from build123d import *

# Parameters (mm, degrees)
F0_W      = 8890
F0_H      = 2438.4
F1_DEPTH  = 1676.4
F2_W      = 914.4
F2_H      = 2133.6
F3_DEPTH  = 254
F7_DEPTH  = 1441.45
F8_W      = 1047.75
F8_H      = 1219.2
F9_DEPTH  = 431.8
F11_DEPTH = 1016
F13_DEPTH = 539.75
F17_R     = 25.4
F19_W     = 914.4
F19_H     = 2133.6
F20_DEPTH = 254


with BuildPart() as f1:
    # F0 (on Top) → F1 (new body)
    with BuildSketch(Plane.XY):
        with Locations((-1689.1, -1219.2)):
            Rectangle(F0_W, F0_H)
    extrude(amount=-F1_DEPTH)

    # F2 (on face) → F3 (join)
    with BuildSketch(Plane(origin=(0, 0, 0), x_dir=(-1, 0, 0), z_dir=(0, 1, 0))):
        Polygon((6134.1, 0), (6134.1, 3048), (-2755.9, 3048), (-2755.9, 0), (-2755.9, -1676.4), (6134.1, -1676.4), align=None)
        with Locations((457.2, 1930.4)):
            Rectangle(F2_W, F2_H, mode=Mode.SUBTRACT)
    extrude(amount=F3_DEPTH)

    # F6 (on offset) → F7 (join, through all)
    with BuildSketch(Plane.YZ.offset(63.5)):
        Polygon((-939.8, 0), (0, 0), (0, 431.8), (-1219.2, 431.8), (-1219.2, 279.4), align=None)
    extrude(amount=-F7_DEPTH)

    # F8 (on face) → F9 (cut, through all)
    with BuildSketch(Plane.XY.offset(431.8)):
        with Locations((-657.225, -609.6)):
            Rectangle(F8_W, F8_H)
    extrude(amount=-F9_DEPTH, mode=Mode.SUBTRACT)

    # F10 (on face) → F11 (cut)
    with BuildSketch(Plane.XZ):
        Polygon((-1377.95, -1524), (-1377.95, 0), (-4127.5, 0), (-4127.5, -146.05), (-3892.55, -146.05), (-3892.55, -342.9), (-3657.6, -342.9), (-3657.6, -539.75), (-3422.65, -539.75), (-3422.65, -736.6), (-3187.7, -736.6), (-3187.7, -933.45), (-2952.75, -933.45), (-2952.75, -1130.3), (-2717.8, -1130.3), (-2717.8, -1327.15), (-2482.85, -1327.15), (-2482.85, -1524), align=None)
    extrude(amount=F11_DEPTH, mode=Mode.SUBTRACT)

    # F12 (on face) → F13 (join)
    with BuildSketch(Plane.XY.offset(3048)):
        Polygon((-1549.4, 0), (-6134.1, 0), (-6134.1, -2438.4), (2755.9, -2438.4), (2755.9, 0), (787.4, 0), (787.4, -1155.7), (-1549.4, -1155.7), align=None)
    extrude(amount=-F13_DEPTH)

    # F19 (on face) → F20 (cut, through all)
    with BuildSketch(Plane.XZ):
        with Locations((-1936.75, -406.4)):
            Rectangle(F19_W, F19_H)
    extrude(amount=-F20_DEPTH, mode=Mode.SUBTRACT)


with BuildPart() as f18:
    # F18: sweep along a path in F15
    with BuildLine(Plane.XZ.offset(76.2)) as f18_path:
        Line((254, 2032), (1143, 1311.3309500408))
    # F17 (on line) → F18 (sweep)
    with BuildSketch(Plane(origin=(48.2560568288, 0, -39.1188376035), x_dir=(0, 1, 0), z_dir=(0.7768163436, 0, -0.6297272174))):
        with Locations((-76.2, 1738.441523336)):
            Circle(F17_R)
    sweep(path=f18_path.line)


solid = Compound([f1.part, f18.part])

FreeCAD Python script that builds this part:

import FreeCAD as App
import Part
import Sketcher

V = App.Vector
Q = App.Units.Quantity


def add_polygon(sketch, points):
    """Adds a closed chain of lines whose ends are joined by coincident constraints."""
    first, n = sketch.GeometryCount, len(points)
    for a, b in zip(points, points[1:] + points[:1]):
        sketch.addGeometry(Part.LineSegment(App.Vector(*a, 0), App.Vector(*b, 0)), False)
    for i in range(n):
        sketch.addConstraint(Sketcher.Constraint("Coincident", first + i, 2, first + (i + 1) % n, 1))

doc = App.newDocument("Part")
params = doc.addObject("Spreadsheet::Sheet", "Params")
for row, (alias, value) in enumerate([
    ("sketch1_width", "350 in"),
    ("sketch1_height", "96 in"),
    ("pad1_length", "66 in"),
    ("sketch2_width", "350 in"),
    ("sketch2_width2", "36 in"),
    ("sketch2_height", "186 in"),
    ("sketch2_height2", "84 in"),
    ("pad2_length", "10 in"),
    ("sketch3_width", "37 in"),
    ("sketch3_width2", "48 in"),
    ("sketch3_height", "17 in"),
    ("sketch3_height2", "6 in"),
    ("pad3_length", "56.75 in"),
    ("sketch4_height", "48 in"),
    ("sketch4_width", "41.25 in"),
    ("pocket1_length", "17 in"),
    ("sketch5_height", "60 in"),
    ("sketch5_width", "43.5 in"),
    ("pocket2_length", "40 in"),
    ("sketch6_width", "350 in"),
    ("sketch6_width2", "92 in"),
    ("sketch6_height", "96 in"),
    ("sketch6_width3", "180.5 in"),
    ("sketch6_height2", "45.5 in"),
    ("pad4_length", "21.25 in"),
    ("sketch7_width", "36 in"),
    ("sketch7_height", "84 in"),
    ("sketch8_diameter", "2 in"),
], start=1):
    params.set(f"A{row}", alias)
    params.set(f"B{row}", "=" + value)
    params.setAlias(f"B{row}", alias)

body = doc.addObject("PartDesign::Body", "Body")

sketch1 = doc.addObject("Sketcher::SketchObject", "Sketch")
body.addObject(sketch1)
sketch1.AttachmentSupport = (doc.XY_Plane, [""])
sketch1.MapMode = "FlatFace"
add_polygon(sketch1, [(-6134, 0), (-6134, -2438), (2756, -2438), (2756, 0)])
sketch1.addConstraint(Sketcher.Constraint("Vertical", 0))
sketch1.addConstraint(Sketcher.Constraint("Horizontal", 1))
sketch1.addConstraint(Sketcher.Constraint("Vertical", 2))
sketch1.addConstraint(Sketcher.Constraint("Horizontal", 3))
sketch1.addConstraint(Sketcher.Constraint("PointOnObject", 2, 2, -1))
sketch1.addConstraint(Sketcher.Constraint("DistanceX", 1, 1, 1, 2, Q("350 in")))
sketch1.addConstraint(Sketcher.Constraint("DistanceY", 0, 2, 0, 1, Q("96 in")))
sketch1.addConstraint(Sketcher.Constraint("DistanceX", 0, 2, -1, 1, Q("241.5 in")))
sketch1.setExpression("Constraints[9]", "Params.sketch1_width")
sketch1.setExpression("Constraints[10]", "Params.sketch1_height")
pad1 = doc.addObject("PartDesign::Pad", "Pad")
body.addObject(pad1)
pad1.Profile = sketch1
pad1.setExpression("Length", "Params.pad1_length")
pad1.Reversed = True

sketch2 = doc.addObject("Sketcher::SketchObject", "Sketch001")
body.addObject(sketch2)
sketch2.AttachmentSupport = (doc.XZ_Plane, [""])
sketch2.MapMode = "FlatFace"
add_polygon(sketch2, [(-6134, 3048), (2756, 3048), (2756, -1676), (-6134, -1676)])
add_polygon(sketch2, [(-914, 864), (0, 864), (0, 2997), (-914, 2997)])
sketch2.addConstraint(Sketcher.Constraint("Horizontal", 0))
sketch2.addConstraint(Sketcher.Constraint("Vertical", 1))
sketch2.addConstraint(Sketcher.Constraint("Horizontal", 2))
sketch2.addConstraint(Sketcher.Constraint("Vertical", 3))
sketch2.addConstraint(Sketcher.Constraint("Horizontal", 4))
sketch2.addConstraint(Sketcher.Constraint("Vertical", 5))
sketch2.addConstraint(Sketcher.Constraint("Horizontal", 6))
sketch2.addConstraint(Sketcher.Constraint("Vertical", 7))
sketch2.addConstraint(Sketcher.Constraint("PointOnObject", 4, 2, -2))
sketch2.addConstraint(Sketcher.Constraint("DistanceX", 0, 1, 0, 2, Q("350 in")))
sketch2.addConstraint(Sketcher.Constraint("DistanceX", 4, 1, 4, 2, Q("36 in")))
sketch2.addConstraint(Sketcher.Constraint("DistanceY", 1, 2, 1, 1, Q("186 in")))
sketch2.addConstraint(Sketcher.Constraint("DistanceY", 5, 1, 5, 2, Q("84 in")))
sketch2.addConstraint(Sketcher.Constraint("DistanceY", -1, 1, 0, 2, Q("120 in")))
sketch2.addConstraint(Sketcher.Constraint("DistanceY", -1, 1, 4, 2, Q("34 in")))
sketch2.addConstraint(Sketcher.Constraint("DistanceX", -1, 1, 0, 2, Q("108.5 in")))
sketch2.setExpression("Constraints[17]", "Params.sketch2_width")
sketch2.setExpression("Constraints[18]", "Params.sketch2_width2")
sketch2.setExpression("Constraints[19]", "Params.sketch2_height")
sketch2.setExpression("Constraints[20]", "Params.sketch2_height2")
pad2 = doc.addObject("PartDesign::Pad", "Pad001")
body.addObject(pad2)
pad2.Profile = sketch2
pad2.setExpression("Length", "Params.pad2_length")
pad2.Reversed = True

sketch3 = doc.addObject("Sketcher::SketchObject", "Sketch002")
body.addObject(sketch3)
sketch3.AttachmentSupport = (doc.YZ_Plane, [""])
sketch3.MapMode = "FlatFace"
sketch3.AttachmentOffset = App.Placement(V(0, 0, 2.5 * 25.4), App.Rotation())
add_polygon(sketch3, [(-940, 0), (0, 0), (0, 432), (-1219, 432), (-1219, 279)])
sketch3.addConstraint(Sketcher.Constraint("Horizontal", 0))
sketch3.addConstraint(Sketcher.Constraint("Vertical", 1))
sketch3.addConstraint(Sketcher.Constraint("Horizontal", 2))
sketch3.addConstraint(Sketcher.Constraint("Vertical", 3))
sketch3.addConstraint(Sketcher.Constraint("Coincident", 0, 2, -1, 1))
sketch3.addConstraint(Sketcher.Constraint("DistanceX", 0, 1, 0, 2, Q("37 in")))
sketch3.addConstraint(Sketcher.Constraint("DistanceX", 2, 2, 2, 1, Q("48 in")))
sketch3.addConstraint(Sketcher.Constraint("DistanceY", 1, 1, 1, 2, Q("17 in")))
sketch3.addConstraint(Sketcher.Constraint("DistanceY", 3, 2, 3, 1, Q("6 in")))
sketch3.setExpression("Constraints[10]", "Params.sketch3_width")
sketch3.setExpression("Constraints[11]", "Params.sketch3_width2")
sketch3.setExpression("Constraints[12]", "Params.sketch3_height")
sketch3.setExpression("Constraints[13]", "Params.sketch3_height2")
pad3 = doc.addObject("PartDesign::Pad", "Pad002")
body.addObject(pad3)
pad3.Profile = sketch3
pad3.setExpression("Length", "Params.pad3_length")
pad3.Reversed = True

sketch4 = doc.addObject("Sketcher::SketchObject", "Sketch003")
body.addObject(sketch4)
sketch4.AttachmentSupport = (doc.XY_Plane, [""])
sketch4.MapMode = "FlatFace"
sketch4.AttachmentOffset = App.Placement(V(0, 0, 17 * 25.4), App.Rotation())
add_polygon(sketch4, [(-1181, 0), (-1181, -1219), (-133, -1219), (-133, 0)])
sketch4.addConstraint(Sketcher.Constraint("Vertical", 0))
sketch4.addConstraint(Sketcher.Constraint("Horizontal", 1))
sketch4.addConstraint(Sketcher.Constraint("Vertical", 2))
sketch4.addConstraint(Sketcher.Constraint("Horizontal", 3))
sketch4.addConstraint(Sketcher.Constraint("PointOnObject", 2, 2, -1))
sketch4.addConstraint(Sketcher.Constraint("DistanceY", 0, 2, 0, 1, Q("48 in")))
sketch4.addConstraint(Sketcher.Constraint("DistanceX", 1, 1, 1, 2, Q("41.25 in")))
sketch4.addConstraint(Sketcher.Constraint("DistanceX", 0, 2, -1, 1, Q("46.5 in")))
sketch4.setExpression("Constraints[9]", "Params.sketch4_height")
sketch4.setExpression("Constraints[10]", "Params.sketch4_width")
pocket1 = doc.addObject("PartDesign::Pocket", "Pocket")
body.addObject(pocket1)
pocket1.Profile = sketch4
pocket1.setExpression("Length", "Params.pocket1_length")

sketch5 = doc.addObject("Sketcher::SketchObject", "Sketch004")
body.addObject(sketch5)
sketch5.AttachmentSupport = (doc.XZ_Plane, [""])
sketch5.MapMode = "FlatFace"
add_polygon(sketch5, [(-1378, -1524), (-1378, 0), (-4128, 0), (-4128, -146), (-3893, -146), (-3893, -343), (-3658, -343), (-3658, -540), (-3423, -540), (-3423, -737), (-3188, -737), (-3188, -933), (-2953, -933), (-2953, -1130), (-2718, -1130), (-2718, -1327), (-2483, -1327), (-2483, -1524)])
sketch5.addConstraint(Sketcher.Constraint("Vertical", 0))
sketch5.addConstraint(Sketcher.Constraint("Horizontal", 1))
sketch5.addConstraint(Sketcher.Constraint("Vertical", 2))
sketch5.addConstraint(Sketcher.Constraint("Horizontal", 3))
sketch5.addConstraint(Sketcher.Constraint("Vertical", 4))
sketch5.addConstraint(Sketcher.Constraint("Horizontal", 5))
sketch5.addConstraint(Sketcher.Constraint("Vertical", 6))
sketch5.addConstraint(Sketcher.Constraint("Horizontal", 7))
sketch5.addConstraint(Sketcher.Constraint("Vertical", 8))
sketch5.addConstraint(Sketcher.Constraint("Horizontal", 9))
sketch5.addConstraint(Sketcher.Constraint("Vertical", 10))
sketch5.addConstraint(Sketcher.Constraint("Horizontal", 11))
sketch5.addConstraint(Sketcher.Constraint("Vertical", 12))
sketch5.addConstraint(Sketcher.Constraint("Horizontal", 13))
sketch5.addConstraint(Sketcher.Constraint("Vertical", 14))
sketch5.addConstraint(Sketcher.Constraint("Horizontal", 15))
sketch5.addConstraint(Sketcher.Constraint("Vertical", 16))
sketch5.addConstraint(Sketcher.Constraint("Horizontal", 17))
sketch5.addConstraint(Sketcher.Constraint("PointOnObject", 0, 2, -1))
sketch5.addConstraint(Sketcher.Constraint("Equal", 3, 5))
sketch5.addConstraint(Sketcher.Constraint("Equal", 5, 7))
sketch5.addConstraint(Sketcher.Constraint("Equal", 7, 9))
sketch5.addConstraint(Sketcher.Constraint("Equal", 9, 11))
sketch5.addConstraint(Sketcher.Constraint("Equal", 11, 13))
sketch5.addConstraint(Sketcher.Constraint("Equal", 13, 15))
sketch5.addConstraint(Sketcher.Constraint("Equal", 4, 6))
sketch5.addConstraint(Sketcher.Constraint("Equal", 6, 8))
sketch5.addConstraint(Sketcher.Constraint("Equal", 8, 10))
sketch5.addConstraint(Sketcher.Constraint("Equal", 10, 12))
sketch5.addConstraint(Sketcher.Constraint("Equal", 12, 14))
sketch5.addConstraint(Sketcher.Constraint("Equal", 14, 16))
sketch5.addConstraint(Sketcher.Constraint("DistanceY", 0, 1, 0, 2, Q("60 in")))
sketch5.addConstraint(Sketcher.Constraint("DistanceX", 17, 1, 17, 2, Q("43.5 in")))
sketch5.addConstraint(Sketcher.Constraint("DistanceX", 5, 2, -1, 1, Q("144 in")))
sketch5.addConstraint(Sketcher.Constraint("DistanceY", 8, 2, -1, 1, Q("29 in")))
sketch5.addConstraint(Sketcher.Constraint("DistanceX", 13, 2, -1, 1, Q("107 in")))
sketch5.setExpression("Constraints[49]", "Params.sketch5_height")
sketch5.setExpression("Constraints[50]", "Params.sketch5_width")
pocket2 = doc.addObject("PartDesign::Pocket", "Pocket001")
body.addObject(pocket2)
pocket2.Profile = sketch5
pocket2.setExpression("Length", "Params.pocket2_length")
pocket2.Reversed = True

sketch6 = doc.addObject("Sketcher::SketchObject", "Sketch005")
body.addObject(sketch6)
sketch6.AttachmentSupport = (doc.XY_Plane, [""])
sketch6.MapMode = "FlatFace"
sketch6.AttachmentOffset = App.Placement(V(0, 0, 120 * 25.4), App.Rotation())
add_polygon(sketch6, [(-1549, 0), (-6134, 0), (-6134, -2438), (2756, -2438), (2756, 0), (787, 0), (787, -1156), (-1549, -1156)])
sketch6.addConstraint(Sketcher.Constraint("Horizontal", 0))
sketch6.addConstraint(Sketcher.Constraint("Vertical", 1))
sketch6.addConstraint(Sketcher.Constraint("Horizontal", 2))
sketch6.addConstraint(Sketcher.Constraint("Vertical", 3))
sketch6.addConstraint(Sketcher.Constraint("Horizontal", 4))
sketch6.addConstraint(Sketcher.Constraint("Vertical", 5))
sketch6.addConstraint(Sketcher.Constraint("Horizontal", 6))
sketch6.addConstraint(Sketcher.Constraint("Vertical", 7))
sketch6.addConstraint(Sketcher.Constraint("PointOnObject", 0, 2, -1))
sketch6.addConstraint(Sketcher.Constraint("PointOnObject", 3, 2, -1))
sketch6.addConstraint(Sketcher.Constraint("DistanceX", 2, 1, 2, 2, Q("350 in")))
sketch6.addConstraint(Sketcher.Constraint("DistanceX", 6, 2, 6, 1, Q("92 in")))
sketch6.addConstraint(Sketcher.Constraint("DistanceY", 1, 2, 1, 1, Q("96 in")))
sketch6.addConstraint(Sketcher.Constraint("DistanceX", 0, 2, 0, 1, Q("180.5 in")))
sketch6.addConstraint(Sketcher.Constraint("DistanceY", 5, 2, 5, 1, Q("45.5 in")))
sketch6.addConstraint(Sketcher.Constraint("DistanceX", -1, 1, 4, 2, Q("31 in")))
sketch6.setExpression("Constraints[18]", "Params.sketch6_width")
sketch6.setExpression("Constraints[19]", "Params.sketch6_width2")
sketch6.setExpression("Constraints[20]", "Params.sketch6_height")
sketch6.setExpression("Constraints[21]", "Params.sketch6_width3")
sketch6.setExpression("Constraints[22]", "Params.sketch6_height2")
pad4 = doc.addObject("PartDesign::Pad", "Pad003")
body.addObject(pad4)
pad4.Profile = sketch6
pad4.setExpression("Length", "Params.pad4_length")
pad4.Reversed = True

sketch7 = doc.addObject("Sketcher::SketchObject", "Sketch006")
body.addObject(sketch7)
sketch7.AttachmentSupport = (doc.XZ_Plane, [""])
sketch7.MapMode = "FlatFace"
add_polygon(sketch7, [(-2394, 660), (-2394, -1473), (-1480, -1473), (-1480, 660)])
sketch7.addConstraint(Sketcher.Constraint("Vertical", 0))
sketch7.addConstraint(Sketcher.Constraint("Horizontal", 1))
sketch7.addConstraint(Sketcher.Constraint("Vertical", 2))
sketch7.addConstraint(Sketcher.Constraint("Horizontal", 3))
sketch7.addConstraint(Sketcher.Constraint("DistanceX", 1, 1, 1, 2, Q("36 in")))
sketch7.addConstraint(Sketcher.Constraint("DistanceY", 0, 2, 0, 1, Q("84 in")))
sketch7.addConstraint(Sketcher.Constraint("DistanceY", 0, 2, -1, 1, Q("58 in")))
sketch7.addConstraint(Sketcher.Constraint("DistanceX", 0, 2, -1, 1, Q("94.25 in")))
sketch7.setExpression("Constraints[8]", "Params.sketch7_width")
sketch7.setExpression("Constraints[9]", "Params.sketch7_height")
pocket3 = doc.addObject("PartDesign::Pocket", "Pocket002")
body.addObject(pocket3)
pocket3.Profile = sketch7
pocket3.Type = "ThroughAll"
body2 = doc.addObject("PartDesign::Body", "Body001")

sketch8 = doc.addObject("Sketcher::SketchObject", "Sketch007")
body2.addObject(sketch8)
sketch8.Placement = App.Placement(V(48.256057, 0, -39.118838), App.Rotation(V(0, 1, 0), V(0.629727217, 0, 0.776816344), V(0.776816344, 0, -0.629727217), "ZXY"))
sketch8.addGeometry(Part.Circle(V(-76, 1738, 0), V(0, 0, 1), 25), False)
sketch8.addConstraint(Sketcher.Constraint("Diameter", 0, Q("2 in")))
sketch8.addConstraint(Sketcher.Constraint("DistanceX", 0, 3, -1, 1, Q("3 in")))
sketch8.addConstraint(Sketcher.Constraint("DistanceY", -1, 1, 0, 3, Q("1738.441524 mm")))
sketch8.setExpression("Constraints[0]", "Params.sketch8_diameter")

sketch9 = doc.addObject("Sketcher::SketchObject", "Sketch008")
body2.addObject(sketch9)
sketch9.Placement = App.Placement(V(1094.743943, 0, 1350.449788), App.Rotation(V(0.776816344, 0, -0.629727217), V(0, 1, 0), V(0.629727217, 0, 0.776816344), "ZXY"))
sketch9.addGeometry(Part.LineSegment(V(-1082, -76, 0), V(62, -76, 0)), False)
sketch9.addConstraint(Sketcher.Constraint("Horizontal", 0))
sketch9.addConstraint(Sketcher.Constraint("DistanceY", 0, 1, -1, 1, Q("3 in")))
sketch9.addConstraint(Sketcher.Constraint("DistanceX", 0, 1, 0, 2, Q("1144.414645 mm")))
sketch9.addConstraint(Sketcher.Constraint("DistanceX", -1, 1, 0, 2, Q("62.12029 mm")))
doc.recompute()

additivepipe = doc.addObject("PartDesign::AdditivePipe", "AdditivePipe")
body2.addObject(additivepipe)
additivepipe.Profile = sketch8
additivepipe.Spine = (sketch9, ["Edge1"])

doc.recompute()
